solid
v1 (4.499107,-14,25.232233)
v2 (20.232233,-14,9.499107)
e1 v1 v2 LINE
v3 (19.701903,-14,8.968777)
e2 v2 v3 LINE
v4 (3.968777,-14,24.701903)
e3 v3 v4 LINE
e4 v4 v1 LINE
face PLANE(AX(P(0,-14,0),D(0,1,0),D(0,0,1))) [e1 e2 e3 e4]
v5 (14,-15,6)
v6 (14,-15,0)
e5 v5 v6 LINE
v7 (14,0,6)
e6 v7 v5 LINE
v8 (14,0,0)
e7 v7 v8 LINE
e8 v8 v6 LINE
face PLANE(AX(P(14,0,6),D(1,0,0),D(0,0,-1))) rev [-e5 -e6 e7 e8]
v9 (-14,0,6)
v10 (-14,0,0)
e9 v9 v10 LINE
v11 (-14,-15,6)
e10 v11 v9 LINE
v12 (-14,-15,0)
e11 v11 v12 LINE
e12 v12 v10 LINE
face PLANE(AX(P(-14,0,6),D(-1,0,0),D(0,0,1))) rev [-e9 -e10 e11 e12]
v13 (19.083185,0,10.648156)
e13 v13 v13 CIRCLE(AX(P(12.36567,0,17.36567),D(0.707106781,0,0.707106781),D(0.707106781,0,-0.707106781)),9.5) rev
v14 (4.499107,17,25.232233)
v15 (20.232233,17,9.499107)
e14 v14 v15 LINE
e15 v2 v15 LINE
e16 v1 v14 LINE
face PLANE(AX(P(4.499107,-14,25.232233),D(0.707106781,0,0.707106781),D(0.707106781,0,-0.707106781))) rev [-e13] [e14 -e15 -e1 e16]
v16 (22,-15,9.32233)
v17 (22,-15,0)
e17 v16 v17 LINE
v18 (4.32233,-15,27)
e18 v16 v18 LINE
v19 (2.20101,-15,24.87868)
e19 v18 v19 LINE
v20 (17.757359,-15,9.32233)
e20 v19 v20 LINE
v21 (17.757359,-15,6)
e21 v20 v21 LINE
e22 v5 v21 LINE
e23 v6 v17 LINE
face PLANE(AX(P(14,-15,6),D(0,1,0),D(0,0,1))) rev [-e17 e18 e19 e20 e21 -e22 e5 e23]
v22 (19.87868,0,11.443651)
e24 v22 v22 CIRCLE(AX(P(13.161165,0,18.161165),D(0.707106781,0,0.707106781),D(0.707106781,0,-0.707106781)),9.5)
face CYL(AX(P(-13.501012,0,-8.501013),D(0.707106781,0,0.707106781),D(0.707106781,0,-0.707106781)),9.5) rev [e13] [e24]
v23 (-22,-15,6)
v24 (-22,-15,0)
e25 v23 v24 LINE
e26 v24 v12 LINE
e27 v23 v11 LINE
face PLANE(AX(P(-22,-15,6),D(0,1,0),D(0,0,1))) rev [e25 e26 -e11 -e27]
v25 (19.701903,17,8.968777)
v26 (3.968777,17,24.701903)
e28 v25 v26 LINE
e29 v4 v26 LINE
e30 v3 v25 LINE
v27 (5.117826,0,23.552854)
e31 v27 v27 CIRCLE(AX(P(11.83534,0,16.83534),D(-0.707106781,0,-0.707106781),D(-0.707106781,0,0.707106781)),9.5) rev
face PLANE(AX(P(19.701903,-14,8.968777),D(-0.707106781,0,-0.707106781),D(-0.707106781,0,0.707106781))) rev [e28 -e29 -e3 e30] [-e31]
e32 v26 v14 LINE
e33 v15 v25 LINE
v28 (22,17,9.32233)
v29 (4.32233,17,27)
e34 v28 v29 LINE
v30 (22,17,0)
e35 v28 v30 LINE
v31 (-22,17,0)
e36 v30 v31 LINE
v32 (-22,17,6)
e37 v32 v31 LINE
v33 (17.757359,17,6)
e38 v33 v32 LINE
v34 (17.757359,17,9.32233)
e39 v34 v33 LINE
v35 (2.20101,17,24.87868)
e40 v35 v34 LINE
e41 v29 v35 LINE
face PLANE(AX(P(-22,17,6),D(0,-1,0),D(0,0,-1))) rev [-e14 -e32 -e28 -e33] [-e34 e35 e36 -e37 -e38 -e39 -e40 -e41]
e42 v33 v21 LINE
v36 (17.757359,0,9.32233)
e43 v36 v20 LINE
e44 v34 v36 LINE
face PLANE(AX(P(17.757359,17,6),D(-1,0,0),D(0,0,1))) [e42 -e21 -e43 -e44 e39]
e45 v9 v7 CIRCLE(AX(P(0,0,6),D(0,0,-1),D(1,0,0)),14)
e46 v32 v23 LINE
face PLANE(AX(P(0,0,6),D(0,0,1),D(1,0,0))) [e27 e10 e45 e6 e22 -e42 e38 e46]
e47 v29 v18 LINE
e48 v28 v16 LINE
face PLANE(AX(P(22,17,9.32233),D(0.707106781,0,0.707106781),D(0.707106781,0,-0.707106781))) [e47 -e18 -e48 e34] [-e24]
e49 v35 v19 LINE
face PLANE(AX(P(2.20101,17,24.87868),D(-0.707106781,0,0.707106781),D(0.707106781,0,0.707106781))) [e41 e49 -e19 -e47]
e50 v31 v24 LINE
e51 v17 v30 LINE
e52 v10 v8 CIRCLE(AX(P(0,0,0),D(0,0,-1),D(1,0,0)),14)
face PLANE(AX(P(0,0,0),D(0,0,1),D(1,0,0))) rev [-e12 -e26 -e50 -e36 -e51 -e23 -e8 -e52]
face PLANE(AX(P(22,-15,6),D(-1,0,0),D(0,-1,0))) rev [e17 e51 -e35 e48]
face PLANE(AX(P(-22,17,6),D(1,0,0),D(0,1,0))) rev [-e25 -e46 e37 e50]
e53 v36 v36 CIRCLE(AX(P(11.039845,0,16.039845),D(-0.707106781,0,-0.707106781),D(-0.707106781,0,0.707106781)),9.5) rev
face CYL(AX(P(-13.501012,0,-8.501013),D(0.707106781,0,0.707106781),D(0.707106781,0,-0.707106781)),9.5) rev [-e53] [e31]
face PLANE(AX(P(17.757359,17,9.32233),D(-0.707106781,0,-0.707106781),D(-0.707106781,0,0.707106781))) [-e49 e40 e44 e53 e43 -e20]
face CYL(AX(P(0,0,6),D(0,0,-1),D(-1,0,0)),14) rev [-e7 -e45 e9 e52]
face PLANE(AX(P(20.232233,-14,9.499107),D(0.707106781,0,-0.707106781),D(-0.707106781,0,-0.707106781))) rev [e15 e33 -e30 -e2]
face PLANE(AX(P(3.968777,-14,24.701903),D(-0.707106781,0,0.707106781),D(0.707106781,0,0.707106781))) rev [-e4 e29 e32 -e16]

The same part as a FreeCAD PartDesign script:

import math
import FreeCAD as App
import Part
import Sketcher
from FreeCAD import Vector
Q = App.Units.Quantity


def add_polygon(sketch, points):
    """Adds a closed chain of lines whose ends are joined by coincident constraints."""
    first, n = sketch.GeometryCount, len(points)
    for a, b in zip(points, points[1:] + points[:1]):
        sketch.addGeometry(Part.LineSegment(App.Vector(*a, 0), App.Vector(*b, 0)), False)
    for i in range(n):
        sketch.addConstraint(Sketcher.Constraint("Coincident", first + i, 2, first + (i + 1) % n, 1))

doc = App.newDocument("Part")
body = doc.addObject("PartDesign::Body", "Body")

sketch1 = body.newObject("Sketcher::SketchObject", "Sketch")
sketch1.AttachmentSupport = (doc.getObject("XY_Plane"), [""])
sketch1.MapMode = "FlatFace"
sketch1.addGeometry(Part.LineSegment(Vector(-22, 17, 0), Vector(-22, -15, 0)), False)
sketch1.addGeometry(Part.LineSegment(Vector(-22, -15, 0), Vector(-14, -15, 0)), False)
sketch1.addGeometry(Part.LineSegment(Vector(-14, -15, 0), Vector(-14, 0, 0)), False)
sketch1.addGeometry(Part.ArcOfCircle(Part.Circle(Vector(0, 0, 0), Vector(0, 0, 1), 14), math.radians(0), math.radians(180)), False)
sketch1.addGeometry(Part.LineSegment(Vector(14, 0, 0), Vector(14, -15, 0)), False)
sketch1.addGeometry(Part.LineSegment(Vector(14, -15, 0), Vector(22, -15, 0)), False)
sketch1.addGeometry(Part.LineSegment(Vector(22, -15, 0), Vector(22, 17, 0)), False)
sketch1.addGeometry(Part.LineSegment(Vector(22, 17, 0), Vector(-22, 17, 0)), False)
sketch1.addConstraint(Sketcher.Constraint("Coincident", 0, 2, 1, 1))
sketch1.addConstraint(Sketcher.Constraint("Coincident", 1, 2, 2, 1))
sketch1.addConstraint(Sketcher.Constraint("Tangent", 2, 2, 3, 2))
sketch1.addConstraint(Sketcher.Constraint("Tangent", 3, 1, 4, 1))
sketch1.addConstraint(Sketcher.Constraint("Coincident", 4, 2, 5, 1))
sketch1.addConstraint(Sketcher.Constraint("Coincident", 5, 2, 6, 1))
sketch1.addConstraint(Sketcher.Constraint("Coincident", 6, 2, 7, 1))
sketch1.addConstraint(Sketcher.Constraint("Coincident", 7, 2, 0, 1))
sketch1.addConstraint(Sketcher.Constraint("Vertical", 0))
sketch1.addConstraint(Sketcher.Constraint("Horizontal", 1))
sketch1.addConstraint(Sketcher.Constraint("Vertical", 2))
sketch1.addConstraint(Sketcher.Constraint("Vertical", 4))
sketch1.addConstraint(Sketcher.Constraint("Horizontal", 5))
sketch1.addConstraint(Sketcher.Constraint("Vertical", 6))
sketch1.addConstraint(Sketcher.Constraint("Horizontal", 7))
sketch1.addConstraint(Sketcher.Constraint("Coincident", 3, 3, -1, 1))
sketch1.addConstraint(Sketcher.Constraint("Symmetric", 0, 2, 5, 2, -2))
sketch1.addConstraint(Sketcher.Constraint("Radius", 3, Q("14 mm")))
sketch1.addConstraint(Sketcher.Constraint("DistanceX", 1, 1, 1, 2, Q("8 mm")))
sketch1.addConstraint(Sketcher.Constraint("DistanceY", 0, 2, 0, 1, Q("32 mm")))
sketch1.addConstraint(Sketcher.Constraint("DistanceY", 2, 1, 2, 2, Q("15 mm")))
pad1 = body.newObject("PartDesign::Pad", "Pad")
pad1.Profile = sketch1
pad1.Length = 6

sketch2 = body.newObject("Sketcher::SketchObject", "Sketch001")
sketch2.AttachmentSupport = (doc.getObject("XZ_Plane"), [""])
sketch2.MapMode = "FlatFace"
sketch2.AttachmentOffset = App.Placement(Vector(0, 0, 15), App.Rotation())
add_polygon(sketch2, [(22, 6), (22, 9.3), (4.3, 27), (2.2, 24.9), (17.8, 9.3), (17.8, 6)])
sketch2.addConstraint(Sketcher.Constraint("Vertical", 0))
sketch2.addConstraint(Sketcher.Constraint("Vertical", 4))
sketch2.addConstraint(Sketcher.Constraint("Horizontal", 5))
sketch2.addConstraint(Sketcher.Constraint("Perpendicular", 1, 2))
sketch2.addConstraint(Sketcher.Constraint("Perpendicular", 2, 3))
sketch2.addConstraint(Sketcher.Constraint("Horizontal", 0, 2, 3, 2))
sketch2.addConstraint(Sketcher.Constraint("Angle", 1, Q("135 deg")))
sketch2.addConstraint(Sketcher.Constraint("Distance", 1, Q("25 mm")))
sketch2.addConstraint(Sketcher.Constraint("Distance", 2, Q("3 mm")))
sketch2.addConstraint(Sketcher.Constraint("DistanceX", -1, 1, 0, 2, Q("22 mm")))
sketch2.addConstraint(Sketcher.Constraint("DistanceY", -1, 1, 1, 2, Q("27 mm")))
sketch2.addConstraint(Sketcher.Constraint("DistanceY", -1, 1, 4, 2, Q("6 mm")))
pad2 = body.newObject("PartDesign::Pad", "Pad001")
pad2.Profile = sketch2
pad2.Length = 32
pad2.Reversed = True

sketch3 = body.newObject("Sketcher::SketchObject", "Sketch002")
sketch3.Placement = App.Placement(Vector(15.661165, 0, 15.661165), App.Rotation(Vector(0.707106781, 0, -0.707106781), Vector(0, 0.999999999, 0), Vector(0.707106781, 0, 0.707106781), "ZXY"))
sketch3.addGeometry(Part.Circle(Vector(-4, 0, 0), Vector(0, 0, 1), 10), False)
sketch3.addConstraint(Sketcher.Constraint("PointOnObject", 0, 3, -1))
sketch3.addConstraint(Sketcher.Constraint("Diameter", 0, Q("19 mm")))
sketch3.addConstraint(Sketcher.Constraint("DistanceX", 0, 3, -1, 1, Q("3.535534 mm")))
pocket1 = body.newObject("PartDesign::Pocket", "Pocket")
pocket1.Profile = sketch3
pocket1.Type = "UpToFirst"

sketch4 = body.newObject("Sketcher::SketchObject", "Sketch003")
sketch4.AttachmentSupport = (doc.getObject("XZ_Plane"), [""])
sketch4.MapMode = "FlatFace"
sketch4.AttachmentOffset = App.Placement(Vector(0, 0, -17), App.Rotation())
add_polygon(sketch4, [(4.5, 25.2), (20.2, 9.5), (19.7, 9), (4, 24.7)])
sketch4.addConstraint(Sketcher.Constraint("Perpendicular", 0, 1))
sketch4.addConstraint(Sketcher.Constraint("Perpendicular", 1, 2))
sketch4.addConstraint(Sketcher.Constraint("Perpendicular", 2, 3))
sketch4.addConstraint(Sketcher.Constraint("Angle", 0, Q("-45 deg")))
sketch4.addConstraint(Sketcher.Constraint("Distance", 0, Q("22.25 mm")))
sketch4.addConstraint(Sketcher.Constraint("Distance", 1, Q("0.75 mm")))
sketch4.addConstraint(Sketcher.Constraint("DistanceX", -1, 1, 0, 2, Q("20.232233 mm")))
sketch4.addConstraint(Sketcher.Constraint("DistanceY", -1, 1, 0, 2, Q("9.499107 mm")))
pocket2 = body.newObject("PartDesign::Pocket", "Pocket001")
pocket2.Profile = sketch4
pocket2.Length = 31
pocket2.Reversed = True

doc.recompute()
